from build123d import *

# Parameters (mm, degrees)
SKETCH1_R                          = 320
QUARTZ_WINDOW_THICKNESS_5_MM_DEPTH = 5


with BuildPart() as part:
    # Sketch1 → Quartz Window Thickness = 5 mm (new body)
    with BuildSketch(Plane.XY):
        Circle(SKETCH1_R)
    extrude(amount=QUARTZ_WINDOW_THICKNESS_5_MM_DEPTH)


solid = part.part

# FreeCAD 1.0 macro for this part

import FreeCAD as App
import Part
import Sketcher

V = App.Vector
Q = App.Units.Quantity

doc = App.newDocument("Part")
body = doc.addObject("PartDesign::Body", "Body")

sketch1 = body.newObject("Sketcher::SketchObject", "Sketch")
sketch1.AttachmentSupport = (doc.getObject("XY_Plane"), [""])
sketch1.MapMode = "FlatFace"
sketch1.addGeometry(Part.Circle(V(0, 0, 0), V(0, 0, 1), 320), False)
sketch1.addConstraint(Sketcher.Constraint("Coincident", 0, 3, -1, 1))
sketch1.addConstraint(Sketcher.Constraint("Diameter", 0, Q("640 mm")))
pad1 = body.newObject("PartDesign::Pad", "Pad")
pad1.Profile = sketch1
pad1.Length = 5

doc.recompute()
